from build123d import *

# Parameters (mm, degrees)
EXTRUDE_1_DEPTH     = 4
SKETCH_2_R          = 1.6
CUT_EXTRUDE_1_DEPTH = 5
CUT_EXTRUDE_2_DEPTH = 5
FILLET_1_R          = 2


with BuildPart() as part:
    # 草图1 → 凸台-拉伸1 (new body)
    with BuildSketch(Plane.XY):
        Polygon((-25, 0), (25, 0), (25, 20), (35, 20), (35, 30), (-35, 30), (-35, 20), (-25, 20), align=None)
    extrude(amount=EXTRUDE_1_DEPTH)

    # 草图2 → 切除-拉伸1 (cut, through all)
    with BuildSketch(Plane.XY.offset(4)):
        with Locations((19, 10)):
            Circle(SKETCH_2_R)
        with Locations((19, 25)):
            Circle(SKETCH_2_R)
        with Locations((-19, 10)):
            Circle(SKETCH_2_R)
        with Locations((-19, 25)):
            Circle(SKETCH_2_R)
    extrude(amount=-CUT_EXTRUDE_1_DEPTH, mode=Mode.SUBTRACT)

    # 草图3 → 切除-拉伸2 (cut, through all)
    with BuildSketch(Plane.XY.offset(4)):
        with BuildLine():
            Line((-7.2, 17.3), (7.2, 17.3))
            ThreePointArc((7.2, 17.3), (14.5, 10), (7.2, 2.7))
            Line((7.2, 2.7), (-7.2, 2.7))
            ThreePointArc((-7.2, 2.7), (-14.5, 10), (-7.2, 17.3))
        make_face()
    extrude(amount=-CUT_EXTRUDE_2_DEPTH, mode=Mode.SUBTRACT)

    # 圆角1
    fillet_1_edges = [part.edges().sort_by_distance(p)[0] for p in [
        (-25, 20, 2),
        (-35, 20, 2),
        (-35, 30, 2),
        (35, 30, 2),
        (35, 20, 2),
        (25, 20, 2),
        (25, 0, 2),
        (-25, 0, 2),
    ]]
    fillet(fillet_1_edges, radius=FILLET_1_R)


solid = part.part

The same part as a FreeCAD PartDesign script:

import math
import FreeCAD as App
import Part
import Sketcher


def edges_at(feature, points):
    """Names of the edges that pass closest to the given points."""
    edges = feature.Shape.Edges
    near = lambda p: min(range(len(edges)), key=lambda i: edges[i].distToShape(Part.Vertex(*p))[0])
    return sorted({f"Edge{near(p) + 1}" for p in points})

doc = App.newDocument("Part")
body = doc.addObject("PartDesign::Body", "Body")

# Sketch on XY plane
sketch1 = body.newObject("Sketcher::SketchObject", "Sketch")
sketch1.AttachmentSupport = (doc.getObject("XY_Plane"), [""])
sketch1.MapMode = "FlatFace"
sketch1.addGeometry([
    Part.LineSegment(App.Vector(-25, 0, 0), App.Vector(25, 0, 0)),  # 0
    Part.LineSegment(App.Vector(25, 0, 0), App.Vector(25, 20, 0)),  # 1
    Part.LineSegment(App.Vector(25, 20, 0), App.Vector(35, 20, 0)),  # 2
    Part.LineSegment(App.Vector(35, 20, 0), App.Vector(35, 30, 0)),  # 3
    Part.LineSegment(App.Vector(35, 30, 0), App.Vector(-35, 30, 0)),  # 4
    Part.LineSegment(App.Vector(-35, 30, 0), App.Vector(-35, 20, 0)),  # 5
    Part.LineSegment(App.Vector(-35, 20, 0), App.Vector(-25, 20, 0)),  # 6
    Part.LineSegment(App.Vector(-25, 20, 0), App.Vector(-25, 0, 0)),  # 7
], False)
sketch1.addConstraint([
    Sketcher.Constraint("Coincident", 0, 2, 1, 1),
    Sketcher.Constraint("Coincident", 1, 2, 2, 1),
    Sketcher.Constraint("Coincident", 2, 2, 3, 1),
    Sketcher.Constraint("Coincident", 3, 2, 4, 1),
    Sketcher.Constraint("Coincident", 4, 2, 5, 1),
    Sketcher.Constraint("Coincident", 5, 2, 6, 1),
    Sketcher.Constraint("Coincident", 6, 2, 7, 1),
    Sketcher.Constraint("Coincident", 7, 2, 0, 1),
    Sketcher.Constraint("Horizontal", 0),
    Sketcher.Constraint("Vertical", 1),
    Sketcher.Constraint("Horizontal", 2),
    Sketcher.Constraint("Vertical", 3),
    Sketcher.Constraint("Horizontal", 4),
    Sketcher.Constraint("Vertical", 5),
    Sketcher.Constraint("Horizontal", 6),
    Sketcher.Constraint("Vertical", 7),
    Sketcher.Constraint("Symmetric", 0, 2, 7, 2, -1, 1),
    Sketcher.Constraint("Symmetric", 2, 2, 5, 2, -2),
    Sketcher.Constraint("Equal", 6, 3),
    Sketcher.Constraint("DistanceX", 0, 1, 0, 2, 50.0),
    Sketcher.Constraint("DistanceX", 2, 1, 2, 2, 10.0),
    Sketcher.Constraint("DistanceY", 1, 1, 1, 2, 20.0),
])
pad1 = body.newObject("PartDesign::Pad", "Pad")
pad1.Profile = sketch1
pad1.Length = 4

# Sketch on XY plane
sketch2 = body.newObject("Sketcher::SketchObject", "Sketch001")
sketch2.AttachmentSupport = (doc.getObject("XY_Plane"), [""])
sketch2.MapMode = "FlatFace"
sketch2.AttachmentOffset = App.Placement(App.Vector(0, 0, 4), App.Rotation())
sketch2.addGeometry([
    Part.Circle(App.Vector(19, 10, 0), App.Vector(0, 0, 1), 1.6),
    Part.Circle(App.Vector(19, 25, 0), App.Vector(0, 0, 1), 1.6),
    Part.Circle(App.Vector(-19, 10, 0), App.Vector(0, 0, 1), 1.6),
    Part.Circle(App.Vector(-19, 25, 0), App.Vector(0, 0, 1), 1.6),
], False)
sketch2.addConstraint([
    Sketcher.Constraint("Equal", 0, 1),
    Sketcher.Constraint("Equal", 1, 2),
    Sketcher.Constraint("Equal", 2, 3),
    Sketcher.Constraint("Symmetric", 0, 3, 2, 3, -2),
    Sketcher.Constraint("Symmetric", 1, 3, 3, 3, -2),
    Sketcher.Constraint("Vertical", 0, 3, 1, 3),
    Sketcher.Constraint("Diameter", 0, 3.2),
    Sketcher.Constraint("DistanceX", -1, 1, 0, 3, 19.0),
    Sketcher.Constraint("DistanceY", -1, 1, 0, 3, 10.0),
    Sketcher.Constraint("DistanceY", -1, 1, 1, 3, 25.0),
])
pocket1 = body.newObject("PartDesign::Pocket", "Pocket")
pocket1.Profile = sketch2
pocket1.Type = "ThroughAll"

# Sketch on XY plane
sketch3 = body.newObject("Sketcher::SketchObject", "Sketch002")
sketch3.AttachmentSupport = (doc.getObject("XY_Plane"), [""])
sketch3.MapMode = "FlatFace"
sketch3.AttachmentOffset = App.Placement(App.Vector(0, 0, 4), App.Rotation())
sketch3.addGeometry([
    Part.LineSegment(App.Vector(7.2, 17.3, 0), App.Vector(-7.2, 17.3, 0)),
    Part.ArcOfCircle(Part.Circle(App.Vector(-7.2, 10, 0), App.Vector(0, 0, 1), 7.3), math.radians(90), math.radians(270)),
    Part.LineSegment(App.Vector(-7.2, 2.7, 0), App.Vector(7.2, 2.7, 0)),
    Part.ArcOfCircle(Part.Circle(App.Vector(7.2, 10, 0), App.Vector(0, 0, 1), 7.3), math.radians(-90), math.radians(90)),
], False)
sketch3.addConstraint([
    Sketcher.Constraint("Tangent", 0, 2, 1, 1),
    Sketcher.Constraint("Tangent", 1, 2, 2, 1),
    Sketcher.Constraint("Tangent", 2, 2, 3, 1),
    Sketcher.Constraint("Tangent", 3, 2, 0, 1),
    Sketcher.Constraint("Horizontal", 0),
    Sketcher.Constraint("Horizontal", 2),
    Sketcher.Constraint("Radius", 1, 7.3),
    Sketcher.Constraint("DistanceX", 0, 2, 0, 1, 14.4),
    Sketcher.Constraint("DistanceY", -1, 1, 1, 3, 10.0),
    Sketcher.Constraint("DistanceX", 1, 3, -1, 1, 7.2),
])
pocket2 = body.newObject("PartDesign::Pocket", "Pocket001")
pocket2.Profile = sketch3
pocket2.Type = "ThroughAll"
doc.recompute()

fillet = body.newObject("PartDesign::Fillet", "Fillet")
fillet.Base = (pocket2, edges_at(pocket2, [
    (-25, 20, 2),
    (-35, 20, 2),
    (-35, 30, 2),
    (35, 30, 2),
    (35, 20, 2),
    (25, 20, 2),
    (25, 0, 2),
    (-25, 0, 2),
]))
fillet.Radius = 2

doc.recompute()
